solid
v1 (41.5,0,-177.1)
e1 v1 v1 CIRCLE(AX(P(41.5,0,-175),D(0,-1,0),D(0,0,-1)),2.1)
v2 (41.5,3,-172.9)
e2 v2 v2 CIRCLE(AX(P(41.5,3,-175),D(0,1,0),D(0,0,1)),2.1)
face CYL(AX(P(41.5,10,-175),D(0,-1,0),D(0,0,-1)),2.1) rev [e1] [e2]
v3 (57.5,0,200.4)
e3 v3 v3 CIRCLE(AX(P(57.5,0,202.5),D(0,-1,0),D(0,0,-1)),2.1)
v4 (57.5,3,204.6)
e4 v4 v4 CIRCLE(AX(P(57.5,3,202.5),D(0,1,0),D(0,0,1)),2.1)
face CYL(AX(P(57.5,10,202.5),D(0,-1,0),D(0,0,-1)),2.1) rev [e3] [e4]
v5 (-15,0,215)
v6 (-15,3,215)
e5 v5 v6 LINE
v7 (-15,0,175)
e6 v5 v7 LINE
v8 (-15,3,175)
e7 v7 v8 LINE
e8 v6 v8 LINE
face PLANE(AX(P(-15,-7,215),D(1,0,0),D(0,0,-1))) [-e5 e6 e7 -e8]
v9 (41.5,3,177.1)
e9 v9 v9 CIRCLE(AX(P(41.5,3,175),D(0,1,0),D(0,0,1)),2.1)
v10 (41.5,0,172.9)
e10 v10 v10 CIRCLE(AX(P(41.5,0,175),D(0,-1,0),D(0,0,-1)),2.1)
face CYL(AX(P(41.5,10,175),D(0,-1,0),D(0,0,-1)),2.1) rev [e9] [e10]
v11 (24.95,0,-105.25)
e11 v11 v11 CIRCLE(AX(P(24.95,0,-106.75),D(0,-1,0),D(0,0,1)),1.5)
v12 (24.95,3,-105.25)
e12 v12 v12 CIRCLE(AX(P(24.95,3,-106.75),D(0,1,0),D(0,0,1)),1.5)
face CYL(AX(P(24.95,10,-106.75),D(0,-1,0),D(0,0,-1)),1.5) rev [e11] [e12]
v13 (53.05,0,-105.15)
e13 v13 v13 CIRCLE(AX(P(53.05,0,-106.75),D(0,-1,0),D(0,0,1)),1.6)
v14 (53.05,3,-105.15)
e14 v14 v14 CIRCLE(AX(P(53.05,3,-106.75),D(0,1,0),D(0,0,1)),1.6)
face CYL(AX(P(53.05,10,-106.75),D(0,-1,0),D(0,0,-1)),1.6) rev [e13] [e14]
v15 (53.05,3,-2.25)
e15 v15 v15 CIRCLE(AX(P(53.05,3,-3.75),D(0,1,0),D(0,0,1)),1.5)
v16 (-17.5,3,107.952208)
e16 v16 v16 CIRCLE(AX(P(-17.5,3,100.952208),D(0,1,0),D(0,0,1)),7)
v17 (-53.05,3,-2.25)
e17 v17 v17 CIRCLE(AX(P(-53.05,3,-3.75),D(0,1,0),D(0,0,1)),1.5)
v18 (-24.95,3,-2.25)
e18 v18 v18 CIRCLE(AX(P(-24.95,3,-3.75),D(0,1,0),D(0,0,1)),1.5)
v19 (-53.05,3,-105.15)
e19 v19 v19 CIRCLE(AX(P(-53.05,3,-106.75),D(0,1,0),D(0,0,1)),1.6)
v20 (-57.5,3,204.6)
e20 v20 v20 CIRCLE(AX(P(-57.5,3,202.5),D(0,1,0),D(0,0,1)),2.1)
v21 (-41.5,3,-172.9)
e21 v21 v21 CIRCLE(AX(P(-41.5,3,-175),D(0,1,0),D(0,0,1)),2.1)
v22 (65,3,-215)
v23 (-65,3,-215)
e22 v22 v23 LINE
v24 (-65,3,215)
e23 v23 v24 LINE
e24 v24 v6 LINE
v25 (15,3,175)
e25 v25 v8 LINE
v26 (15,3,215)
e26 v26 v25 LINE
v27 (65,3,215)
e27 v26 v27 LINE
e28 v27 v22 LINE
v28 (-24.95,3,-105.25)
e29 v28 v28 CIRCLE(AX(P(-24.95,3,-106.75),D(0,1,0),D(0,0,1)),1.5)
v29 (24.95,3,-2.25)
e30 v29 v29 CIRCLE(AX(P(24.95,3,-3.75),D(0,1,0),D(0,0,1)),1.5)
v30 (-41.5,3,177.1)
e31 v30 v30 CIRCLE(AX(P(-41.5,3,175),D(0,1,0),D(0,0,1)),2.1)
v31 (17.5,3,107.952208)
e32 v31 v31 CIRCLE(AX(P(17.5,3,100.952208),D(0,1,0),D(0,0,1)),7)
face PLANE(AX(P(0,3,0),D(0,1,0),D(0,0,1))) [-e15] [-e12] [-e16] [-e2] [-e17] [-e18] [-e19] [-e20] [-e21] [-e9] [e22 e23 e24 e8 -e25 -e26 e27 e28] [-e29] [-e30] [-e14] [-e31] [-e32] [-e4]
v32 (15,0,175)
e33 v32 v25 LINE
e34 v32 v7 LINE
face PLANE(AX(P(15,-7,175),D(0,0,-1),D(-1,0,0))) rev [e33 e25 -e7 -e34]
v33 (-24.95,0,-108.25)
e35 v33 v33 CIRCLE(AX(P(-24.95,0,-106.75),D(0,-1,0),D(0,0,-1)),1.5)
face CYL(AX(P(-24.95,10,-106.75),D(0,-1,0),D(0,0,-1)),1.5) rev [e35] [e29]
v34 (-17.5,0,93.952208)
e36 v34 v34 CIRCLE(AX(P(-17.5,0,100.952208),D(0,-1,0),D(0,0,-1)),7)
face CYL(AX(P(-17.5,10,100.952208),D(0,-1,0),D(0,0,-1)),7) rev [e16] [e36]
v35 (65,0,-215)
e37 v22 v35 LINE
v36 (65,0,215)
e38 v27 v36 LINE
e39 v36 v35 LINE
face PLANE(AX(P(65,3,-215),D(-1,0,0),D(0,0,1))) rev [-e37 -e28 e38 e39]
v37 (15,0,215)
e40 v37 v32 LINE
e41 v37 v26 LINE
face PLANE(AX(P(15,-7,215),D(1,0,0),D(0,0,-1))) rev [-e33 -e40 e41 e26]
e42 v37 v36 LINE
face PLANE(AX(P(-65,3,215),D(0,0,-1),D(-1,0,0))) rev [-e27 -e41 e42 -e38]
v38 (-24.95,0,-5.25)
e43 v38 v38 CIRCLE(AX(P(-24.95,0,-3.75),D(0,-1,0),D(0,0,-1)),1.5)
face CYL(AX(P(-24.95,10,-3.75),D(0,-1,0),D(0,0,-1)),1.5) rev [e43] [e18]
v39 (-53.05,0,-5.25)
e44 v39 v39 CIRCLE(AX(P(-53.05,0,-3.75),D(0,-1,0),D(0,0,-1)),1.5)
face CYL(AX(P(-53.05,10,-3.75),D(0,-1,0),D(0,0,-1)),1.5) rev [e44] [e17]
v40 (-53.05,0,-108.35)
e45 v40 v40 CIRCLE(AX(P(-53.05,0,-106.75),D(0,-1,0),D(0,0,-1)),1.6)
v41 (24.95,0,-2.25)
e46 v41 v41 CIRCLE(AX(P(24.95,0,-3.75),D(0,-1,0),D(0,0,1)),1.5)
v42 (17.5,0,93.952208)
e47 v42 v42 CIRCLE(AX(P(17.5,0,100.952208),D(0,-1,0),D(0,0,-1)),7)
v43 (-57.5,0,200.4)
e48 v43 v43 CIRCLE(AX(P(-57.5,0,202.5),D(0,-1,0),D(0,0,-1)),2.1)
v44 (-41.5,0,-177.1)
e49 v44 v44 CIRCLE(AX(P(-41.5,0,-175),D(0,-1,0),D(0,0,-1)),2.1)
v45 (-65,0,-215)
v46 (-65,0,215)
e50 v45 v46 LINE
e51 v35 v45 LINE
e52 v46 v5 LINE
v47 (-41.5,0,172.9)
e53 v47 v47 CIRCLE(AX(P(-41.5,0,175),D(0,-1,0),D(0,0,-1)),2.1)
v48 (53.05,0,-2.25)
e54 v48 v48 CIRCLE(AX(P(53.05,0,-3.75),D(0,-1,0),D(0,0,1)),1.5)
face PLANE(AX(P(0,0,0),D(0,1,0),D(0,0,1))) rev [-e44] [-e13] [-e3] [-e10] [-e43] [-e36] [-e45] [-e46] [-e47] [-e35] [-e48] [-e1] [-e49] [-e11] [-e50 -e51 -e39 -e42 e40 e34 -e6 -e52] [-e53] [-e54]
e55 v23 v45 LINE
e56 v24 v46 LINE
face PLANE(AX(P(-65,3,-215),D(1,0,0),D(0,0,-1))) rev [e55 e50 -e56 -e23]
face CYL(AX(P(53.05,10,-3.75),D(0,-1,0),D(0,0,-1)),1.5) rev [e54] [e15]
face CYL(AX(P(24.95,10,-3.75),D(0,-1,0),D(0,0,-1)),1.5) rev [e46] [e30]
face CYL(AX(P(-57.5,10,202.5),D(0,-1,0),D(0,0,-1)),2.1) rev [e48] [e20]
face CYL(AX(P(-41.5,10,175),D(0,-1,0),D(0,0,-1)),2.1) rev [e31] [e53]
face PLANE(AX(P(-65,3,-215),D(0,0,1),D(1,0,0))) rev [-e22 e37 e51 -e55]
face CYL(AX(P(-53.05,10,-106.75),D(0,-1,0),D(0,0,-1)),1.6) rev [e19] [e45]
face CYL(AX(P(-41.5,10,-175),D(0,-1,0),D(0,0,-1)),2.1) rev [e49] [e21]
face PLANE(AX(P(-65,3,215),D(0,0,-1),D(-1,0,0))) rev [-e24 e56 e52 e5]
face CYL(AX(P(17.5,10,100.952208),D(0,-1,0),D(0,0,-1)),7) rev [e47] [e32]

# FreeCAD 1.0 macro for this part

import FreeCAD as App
import Part
import Sketcher

V = App.Vector

doc = App.newDocument("Part")
body = doc.addObject("PartDesign::Body", "Body")

# Sketch on XZ plane
sketch1 = body.newObject("Sketcher::SketchObject", "Sketch")
sketch1.AttachmentSupport = (doc.getObject("XZ_Plane"), [""])
sketch1.MapMode = "FlatFace"
sketch1.addGeometry(Part.LineSegment(V(-65, -215, 0), V(-65, 215, 0)), False)
sketch1.addGeometry(Part.LineSegment(V(-65, 215, 0), V(65, 215, 0)), False)
sketch1.addGeometry(Part.LineSegment(V(65, 215, 0), V(65, -215, 0)), False)
sketch1.addGeometry(Part.LineSegment(V(65, -215, 0), V(-65, -215, 0)), False)
sketch1.addConstraint(Sketcher.Constraint("Coincident", 0, 2, 1, 1))
sketch1.addConstraint(Sketcher.Constraint("Coincident", 1, 2, 2, 1))
sketch1.addConstraint(Sketcher.Constraint("Coincident", 2, 2, 3, 1))
sketch1.addConstraint(Sketcher.Constraint("Coincident", 3, 2, 0, 1))
sketch1.addConstraint(Sketcher.Constraint("Vertical", 0))
sketch1.addConstraint(Sketcher.Constraint("Horizontal", 1))
sketch1.addConstraint(Sketcher.Constraint("Vertical", 2))
sketch1.addConstraint(Sketcher.Constraint("Horizontal", 3))
sketch1.addConstraint(Sketcher.Constraint("Symmetric", 0, 2, 2, 2, -1, 1))
sketch1.addConstraint(Sketcher.Constraint("DistanceX", 1, 1, 1, 2, 130.0))
sketch1.addConstraint(Sketcher.Constraint("DistanceY", 0, 1, 0, 2, 430.0))
pad1 = body.newObject("PartDesign::Pad", "Pad")
pad1.Profile = sketch1
pad1.Length = 3
pad1.Reversed = True

# Sketch on XZ plane
sketch2 = body.newObject("Sketcher::SketchObject", "Sketch001")
sketch2.AttachmentSupport = (doc.getObject("XZ_Plane"), [""])
sketch2.MapMode = "FlatFace"
sketch2.AttachmentOffset = App.Placement(V(0, 0, -3), App.Rotation())
sketch2.addGeometry(Part.LineSegment(V(-15, 175, 0), V(-15, 215, 0)), False)
sketch2.addGeometry(Part.LineSegment(V(-15, 215, 0), V(15, 215, 0)), False)
sketch2.addGeometry(Part.LineSegment(V(15, 215, 0), V(15, 175, 0)), False)
sketch2.addGeometry(Part.LineSegment(V(15, 175, 0), V(-15, 175, 0)), False)
sketch2.addConstraint(Sketcher.Constraint("Coincident", 0, 2, 1, 1))
sketch2.addConstraint(Sketcher.Constraint("Coincident", 1, 2, 2, 1))
sketch2.addConstraint(Sketcher.Constraint("Coincident", 2, 2, 3, 1))
sketch2.addConstraint(Sketcher.Constraint("Coincident", 3, 2, 0, 1))
sketch2.addConstraint(Sketcher.Constraint("Vertical", 0))
sketch2.addConstraint(Sketcher.Constraint("Horizontal", 1))
sketch2.addConstraint(Sketcher.Constraint("Vertical", 2))
sketch2.addConstraint(Sketcher.Constraint("Horizontal", 3))
sketch2.addConstraint(Sketcher.Constraint("DistanceX", 1, 1, 1, 2, 30.0))
sketch2.addConstraint(Sketcher.Constraint("DistanceY", 0, 1, 0, 2, 40.0))
sketch2.addConstraint(Sketcher.Constraint("DistanceX", 0, 2, -1, 1, 15.0))
sketch2.addConstraint(Sketcher.Constraint("DistanceY", -1, 1, 0, 2, 215.0))
pocket1 = body.newObject("PartDesign::Pocket", "Pocket")
pocket1.Profile = sketch2
pocket1.Length = 10
pocket1.Reversed = True

# Sketch on XZ plane
sketch3 = body.newObject("Sketcher::SketchObject", "Sketch002")
sketch3.AttachmentSupport = (doc.getObject("XZ_Plane"), [""])
sketch3.MapMode = "FlatFace"
sketch3.addGeometry(Part.Circle(V(-53, -3.8, 0), V(0, 0, 1), 1.5), False)
sketch3.addGeometry(Part.Circle(V(-24.9, -3.8, 0), V(0, 0, 1), 1.5), False)
sketch3.addGeometry(Part.Circle(V(-53, -106.8, 0), V(0, 0, 1), 1.6), False)
sketch3.addGeometry(Part.Circle(V(-24.9, -106.8, 0), V(0, 0, 1), 1.5), False)
sketch3.addGeometry(Part.Circle(V(24.9, -106.8, 0), V(0, 0, 1), 1.5), False)
sketch3.addGeometry(Part.Circle(V(57.5, 202.5, 0), V(0, 0, 1), 2.1), False)
sketch3.addGeometry(Part.Circle(V(53, -106.8, 0), V(0, 0, 1), 1.6), False)
sketch3.addGeometry(Part.Circle(V(24.9, -3.8, 0), V(0, 0, 1), 1.5), False)
sketch3.addGeometry(Part.Circle(V(-57.5, 202.5, 0), V(0, 0, 1), 2.1), False)
sketch3.addGeometry(Part.Circle(V(53, -3.8, 0), V(0, 0, 1), 1.5), False)
sketch3.addGeometry(Part.Circle(V(-41.5, 175, 0), V(0, 0, 1), 2.1), False)
sketch3.addGeometry(Part.Circle(V(41.5, 175, 0), V(0, 0, 1), 2.1), False)
sketch3.addGeometry(Part.Circle(V(41.5, -175, 0), V(0, 0, 1), 2.1), False)
sketch3.addGeometry(Part.Circle(V(-41.5, -175, 0), V(0, 0, 1), 2.1), False)
sketch3.addConstraint(Sketcher.Constraint("Equal", 0, 1))
sketch3.addConstraint(Sketcher.Constraint("Equal", 1, 3))
sketch3.addConstraint(Sketcher.Constraint("Equal", 3, 4))
sketch3.addConstraint(Sketcher.Constraint("Equal", 2, 6))
sketch3.addConstraint(Sketcher.Constraint("Equal", 4, 7))
sketch3.addConstraint(Sketcher.Constraint("Equal", 5, 8))
sketch3.addConstraint(Sketcher.Constraint("Equal", 7, 9))
sketch3.addConstraint(Sketcher.Constraint("Equal", 8, 10))
sketch3.addConstraint(Sketcher.Constraint("Equal", 10, 11))
sketch3.addConstraint(Sketcher.Constraint("Equal", 11, 12))
sketch3.addConstraint(Sketcher.Constraint("Equal", 12, 13))
sketch3.addConstraint(Sketcher.Constraint("Symmetric", 10, 3, 12, 3, -1, 1))
sketch3.addConstraint(Sketcher.Constraint("Symmetric", 11, 3, 13, 3, -1, 1))
sketch3.addConstraint(Sketcher.Constraint("Symmetric", 3, 3, 4, 3, -2))
sketch3.addConstraint(Sketcher.Constraint("Symmetric", 2, 3, 6, 3, -2))
sketch3.addConstraint(Sketcher.Constraint("Symmetric", 1, 3, 7, 3, -2))
sketch3.addConstraint(Sketcher.Constraint("Symmetric", 5, 3, 8, 3, -2))
sketch3.addConstraint(Sketcher.Constraint("Symmetric", 0, 3, 9, 3, -2))
sketch3.addConstraint(Sketcher.Constraint("Symmetric", 10, 3, 11, 3, -2))
sketch3.addConstraint(Sketcher.Constraint("Horizontal", 0, 3, 1, 3))
sketch3.addConstraint(Sketcher.Constraint("Horizontal", 2, 3, 3, 3))
sketch3.addConstraint(Sketcher.Constraint("Vertical", 0, 3, 2, 3))
sketch3.addConstraint(Sketcher.Constraint("Vertical", 1, 3, 3, 3))
sketch3.addConstraint(Sketcher.Constraint("Diameter", 0, 3.0))
sketch3.addConstraint(Sketcher.Constraint("Diameter", 2, 3.2))
sketch3.addConstraint(Sketcher.Constraint("Diameter", 5, 4.2))
sketch3.addConstraint(Sketcher.Constraint("DistanceY", -1, 1, 10, 3, 175.0))
sketch3.addConstraint(Sketcher.Constraint("DistanceY", 2, 3, 0, 3, 103.0))
sketch3.addConstraint(Sketcher.Constraint("DistanceX", 2, 3, 4, 3, 78.0))
sketch3.addConstraint(Sketcher.Constraint("DistanceX", 8, 3, 5, 3, 115.0))
sketch3.addConstraint(Sketcher.Constraint("DistanceX", 8, 3, 10, 3, 16.0))
sketch3.addConstraint(Sketcher.Constraint("DistanceY", -1, 1, 5, 3, 202.5))
sketch3.addConstraint(Sketcher.Constraint("DistanceX", 0, 3, 1, 3, 28.1))
sketch3.addConstraint(Sketcher.Constraint("DistanceY", 0, 3, -1, 1, 3.75))
pocket2 = body.newObject("PartDesign::Pocket", "Pocket001")
pocket2.Profile = sketch3
pocket2.Length = 10

# Sketch on XZ plane
sketch4 = body.newObject("Sketcher::SketchObject", "Sketch003")
sketch4.AttachmentSupport = (doc.getObject("XZ_Plane"), [""])
sketch4.MapMode = "FlatFace"
sketch4.addGeometry(Part.Circle(V(-18, 101, 0), V(0, 0, 1), 7), False)
sketch4.addGeometry(Part.Circle(V(18, 101, 0), V(0, 0, 1), 7), False)
sketch4.addConstraint(Sketcher.Constraint("Equal", 0, 1))
sketch4.addConstraint(Sketcher.Constraint("Symmetric", 0, 3, 1, 3, -2))
sketch4.addConstraint(Sketcher.Constraint("Diameter", 0, 14.0))
sketch4.addConstraint(Sketcher.Constraint("DistanceX", 0, 3, 1, 3, 35.0))
sketch4.addConstraint(Sketcher.Constraint("DistanceY", -1, 1, 0, 3, 100.952208))
pocket3 = body.newObject("PartDesign::Pocket", "Pocket002")
pocket3.Profile = sketch4
pocket3.Length = 10

doc.recompute()
